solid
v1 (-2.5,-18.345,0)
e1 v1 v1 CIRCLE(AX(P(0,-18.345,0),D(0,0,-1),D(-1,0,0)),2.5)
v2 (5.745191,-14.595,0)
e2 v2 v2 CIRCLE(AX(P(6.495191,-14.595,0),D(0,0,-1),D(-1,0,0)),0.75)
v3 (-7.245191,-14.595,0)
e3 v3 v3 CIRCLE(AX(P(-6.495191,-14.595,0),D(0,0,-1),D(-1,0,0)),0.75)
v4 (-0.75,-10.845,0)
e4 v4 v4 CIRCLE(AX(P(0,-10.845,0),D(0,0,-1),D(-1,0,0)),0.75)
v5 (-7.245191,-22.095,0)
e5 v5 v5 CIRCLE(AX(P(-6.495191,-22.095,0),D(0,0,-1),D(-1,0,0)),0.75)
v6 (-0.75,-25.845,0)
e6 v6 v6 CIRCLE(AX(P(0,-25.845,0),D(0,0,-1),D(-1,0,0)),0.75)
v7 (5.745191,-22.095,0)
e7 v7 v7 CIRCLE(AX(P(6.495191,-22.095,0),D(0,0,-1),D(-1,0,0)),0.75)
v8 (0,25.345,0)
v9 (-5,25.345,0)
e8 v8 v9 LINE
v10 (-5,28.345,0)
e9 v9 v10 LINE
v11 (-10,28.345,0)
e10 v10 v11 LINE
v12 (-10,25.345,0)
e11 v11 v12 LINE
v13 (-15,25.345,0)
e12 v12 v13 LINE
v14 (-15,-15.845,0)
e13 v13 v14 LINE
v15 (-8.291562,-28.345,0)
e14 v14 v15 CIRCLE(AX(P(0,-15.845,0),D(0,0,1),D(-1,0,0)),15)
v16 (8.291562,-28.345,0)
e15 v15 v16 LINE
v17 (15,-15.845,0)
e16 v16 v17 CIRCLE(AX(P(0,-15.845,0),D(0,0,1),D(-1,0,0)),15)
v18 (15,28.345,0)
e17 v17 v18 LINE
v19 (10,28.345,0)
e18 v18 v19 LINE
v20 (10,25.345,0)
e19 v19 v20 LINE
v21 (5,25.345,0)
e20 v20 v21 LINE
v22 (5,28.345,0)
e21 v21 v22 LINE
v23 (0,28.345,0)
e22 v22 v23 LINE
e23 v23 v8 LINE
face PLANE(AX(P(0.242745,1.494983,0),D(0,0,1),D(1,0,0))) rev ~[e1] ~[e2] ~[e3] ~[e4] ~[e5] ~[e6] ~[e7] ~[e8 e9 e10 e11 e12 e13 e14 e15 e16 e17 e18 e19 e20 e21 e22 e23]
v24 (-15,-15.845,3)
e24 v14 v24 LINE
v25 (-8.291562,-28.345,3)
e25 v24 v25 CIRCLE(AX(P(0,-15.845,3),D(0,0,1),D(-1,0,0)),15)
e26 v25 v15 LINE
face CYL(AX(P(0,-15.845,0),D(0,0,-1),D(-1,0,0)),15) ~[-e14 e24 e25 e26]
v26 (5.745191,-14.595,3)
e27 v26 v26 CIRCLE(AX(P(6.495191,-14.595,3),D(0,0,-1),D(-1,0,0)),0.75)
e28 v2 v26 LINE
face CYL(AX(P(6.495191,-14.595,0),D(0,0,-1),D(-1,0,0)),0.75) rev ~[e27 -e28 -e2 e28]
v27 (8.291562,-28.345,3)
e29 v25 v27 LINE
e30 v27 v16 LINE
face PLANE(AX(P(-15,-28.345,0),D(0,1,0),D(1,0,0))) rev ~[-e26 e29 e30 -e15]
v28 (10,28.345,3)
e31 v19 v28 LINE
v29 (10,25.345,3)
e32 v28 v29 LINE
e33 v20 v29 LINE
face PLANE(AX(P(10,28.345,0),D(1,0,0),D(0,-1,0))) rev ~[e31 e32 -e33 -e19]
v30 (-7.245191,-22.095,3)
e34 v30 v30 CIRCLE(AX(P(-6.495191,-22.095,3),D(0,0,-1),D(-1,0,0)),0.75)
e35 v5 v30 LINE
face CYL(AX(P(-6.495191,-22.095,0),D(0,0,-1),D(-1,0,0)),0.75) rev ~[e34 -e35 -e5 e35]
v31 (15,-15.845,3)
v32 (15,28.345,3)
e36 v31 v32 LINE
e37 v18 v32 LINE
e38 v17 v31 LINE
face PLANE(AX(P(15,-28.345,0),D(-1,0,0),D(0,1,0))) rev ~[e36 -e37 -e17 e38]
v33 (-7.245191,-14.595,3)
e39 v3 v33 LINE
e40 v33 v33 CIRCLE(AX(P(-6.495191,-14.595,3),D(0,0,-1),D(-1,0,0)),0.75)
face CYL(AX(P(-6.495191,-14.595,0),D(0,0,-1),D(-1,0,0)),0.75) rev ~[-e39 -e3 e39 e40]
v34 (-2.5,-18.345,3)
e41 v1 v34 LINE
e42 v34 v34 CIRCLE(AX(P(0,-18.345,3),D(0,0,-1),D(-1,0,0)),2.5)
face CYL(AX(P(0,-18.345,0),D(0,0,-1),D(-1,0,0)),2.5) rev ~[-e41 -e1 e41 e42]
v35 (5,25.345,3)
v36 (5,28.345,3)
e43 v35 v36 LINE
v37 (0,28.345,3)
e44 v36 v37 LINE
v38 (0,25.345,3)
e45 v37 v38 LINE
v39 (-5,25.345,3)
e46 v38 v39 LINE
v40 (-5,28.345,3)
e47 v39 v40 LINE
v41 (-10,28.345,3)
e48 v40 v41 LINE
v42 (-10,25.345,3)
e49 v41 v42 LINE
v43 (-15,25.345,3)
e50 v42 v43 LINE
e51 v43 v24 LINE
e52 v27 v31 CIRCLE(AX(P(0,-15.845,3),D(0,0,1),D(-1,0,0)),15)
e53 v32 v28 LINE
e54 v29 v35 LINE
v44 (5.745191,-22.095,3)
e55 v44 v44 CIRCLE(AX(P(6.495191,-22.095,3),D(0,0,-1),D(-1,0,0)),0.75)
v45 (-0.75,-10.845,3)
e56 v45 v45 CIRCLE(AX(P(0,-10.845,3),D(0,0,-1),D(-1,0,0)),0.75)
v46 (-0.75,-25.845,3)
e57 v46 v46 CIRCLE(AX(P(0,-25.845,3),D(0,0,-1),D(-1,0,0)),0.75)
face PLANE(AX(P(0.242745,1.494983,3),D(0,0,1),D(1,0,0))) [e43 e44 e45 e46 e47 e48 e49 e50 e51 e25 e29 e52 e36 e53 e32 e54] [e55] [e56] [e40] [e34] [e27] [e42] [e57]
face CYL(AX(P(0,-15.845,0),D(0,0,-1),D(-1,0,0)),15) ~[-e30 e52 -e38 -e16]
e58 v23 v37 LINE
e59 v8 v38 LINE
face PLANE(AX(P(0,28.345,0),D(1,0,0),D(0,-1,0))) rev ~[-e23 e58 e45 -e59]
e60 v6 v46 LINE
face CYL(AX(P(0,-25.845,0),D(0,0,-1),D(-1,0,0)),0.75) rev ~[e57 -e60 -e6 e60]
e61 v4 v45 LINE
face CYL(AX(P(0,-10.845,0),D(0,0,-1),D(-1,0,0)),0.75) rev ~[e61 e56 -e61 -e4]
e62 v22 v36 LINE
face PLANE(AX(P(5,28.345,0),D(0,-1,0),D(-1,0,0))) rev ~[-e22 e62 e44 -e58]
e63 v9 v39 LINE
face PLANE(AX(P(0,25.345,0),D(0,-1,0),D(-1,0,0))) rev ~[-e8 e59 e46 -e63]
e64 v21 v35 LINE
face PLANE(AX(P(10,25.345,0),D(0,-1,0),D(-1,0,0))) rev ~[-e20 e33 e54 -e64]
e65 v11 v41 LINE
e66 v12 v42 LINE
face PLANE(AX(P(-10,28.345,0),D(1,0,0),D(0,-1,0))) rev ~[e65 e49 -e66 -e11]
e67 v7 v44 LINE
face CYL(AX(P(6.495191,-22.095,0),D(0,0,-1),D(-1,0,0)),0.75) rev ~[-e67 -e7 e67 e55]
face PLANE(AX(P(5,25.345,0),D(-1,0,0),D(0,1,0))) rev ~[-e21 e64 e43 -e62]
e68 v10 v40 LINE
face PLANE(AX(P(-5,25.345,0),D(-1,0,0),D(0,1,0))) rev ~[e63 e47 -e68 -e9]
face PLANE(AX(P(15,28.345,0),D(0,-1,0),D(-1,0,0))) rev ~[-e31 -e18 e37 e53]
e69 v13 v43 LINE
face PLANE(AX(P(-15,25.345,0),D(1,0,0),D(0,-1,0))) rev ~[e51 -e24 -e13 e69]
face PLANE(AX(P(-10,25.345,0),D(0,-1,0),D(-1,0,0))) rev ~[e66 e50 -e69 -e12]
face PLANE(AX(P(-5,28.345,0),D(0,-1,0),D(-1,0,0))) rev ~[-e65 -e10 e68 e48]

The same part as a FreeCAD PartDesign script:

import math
import FreeCAD as App
import Part
import Sketcher

doc = App.newDocument("Part")
body = doc.addObject("PartDesign::Body", "Body")

# Sketch on XY plane
sketch1 = doc.addObject("Sketcher::SketchObject", "Sketch")
body.addObject(sketch1)
sketch1.AttachmentSupport = (doc.XY_Plane, [""])
sketch1.MapMode = "FlatFace"
sketch1.addGeometry([
    Part.LineSegment(App.Vector(-15, -28.3, 0), App.Vector(15, -28.3, 0)),  # 0
    Part.LineSegment(App.Vector(15, -28.3, 0), App.Vector(15, 28.3, 0)),  # 1
    Part.LineSegment(App.Vector(15, 28.3, 0), App.Vector(10, 28.3, 0)),  # 2
    Part.LineSegment(App.Vector(10, 28.3, 0), App.Vector(10, 25.3, 0)),  # 3
    Part.LineSegment(App.Vector(10, 25.3, 0), App.Vector(5, 25.3, 0)),  # 4
    Part.LineSegment(App.Vector(5, 25.3, 0), App.Vector(5, 28.3, 0)),  # 5
    Part.LineSegment(App.Vector(5, 28.3, 0), App.Vector(0, 28.3, 0)),  # 6
    Part.LineSegment(App.Vector(0, 28.3, 0), App.Vector(0, 25.3, 0)),  # 7
    Part.LineSegment(App.Vector(0, 25.3, 0), App.Vector(-5, 25.3, 0)),  # 8
    Part.LineSegment(App.Vector(-5, 25.3, 0), App.Vector(-5, 28.3, 0)),  # 9
    Part.LineSegment(App.Vector(-5, 28.3, 0), App.Vector(-10, 28.3, 0)),  # 10
    Part.LineSegment(App.Vector(-10, 28.3, 0), App.Vector(-10, 25.3, 0)),  # 11
    Part.LineSegment(App.Vector(-10, 25.3, 0), App.Vector(-15, 25.3, 0)),  # 12
    Part.LineSegment(App.Vector(-15, 25.3, 0), App.Vector(-15, -28.3, 0)),  # 13
], False)
sketch1.addConstraint([
    Sketcher.Constraint("Coincident", 0, 2, 1, 1),
    Sketcher.Constraint("Coincident", 1, 2, 2, 1),
    Sketcher.Constraint("Coincident", 2, 2, 3, 1),
    Sketcher.Constraint("Coincident", 3, 2, 4, 1),
    Sketcher.Constraint("Coincident", 4, 2, 5, 1),
    Sketcher.Constraint("Coincident", 5, 2, 6, 1),
    Sketcher.Constraint("Coincident", 6, 2, 7, 1),
    Sketcher.Constraint("Coincident", 7, 2, 8, 1),
    Sketcher.Constraint("Coincident", 8, 2, 9, 1),
    Sketcher.Constraint("Coincident", 9, 2, 10, 1),
    Sketcher.Constraint("Coincident", 10, 2, 11, 1),
    Sketcher.Constraint("Coincident", 11, 2, 12, 1),
    Sketcher.Constraint("Coincident", 12, 2, 13, 1),
    Sketcher.Constraint("Coincident", 13, 2, 0, 1),
    Sketcher.Constraint("Horizontal", 0),
    Sketcher.Constraint("Vertical", 1),
    Sketcher.Constraint("Horizontal", 2),
    Sketcher.Constraint("Vertical", 3),
    Sketcher.Constraint("Horizontal", 4),
    Sketcher.Constraint("Vertical", 5),
    Sketcher.Constraint("Horizontal", 6),
    Sketcher.Constraint("Vertical", 7),
    Sketcher.Constraint("Horizontal", 8),
    Sketcher.Constraint("Vertical", 9),
    Sketcher.Constraint("Horizontal", 10),
    Sketcher.Constraint("Vertical", 11),
    Sketcher.Constraint("Horizontal", 12),
    Sketcher.Constraint("Vertical", 13),
    Sketcher.Constraint("Symmetric", 1, 2, 13, 2, -1, 1),
    Sketcher.Constraint("Symmetric", 4, 2, 8, 2, -2),
    Sketcher.Constraint("Symmetric", 2, 2, 10, 2, -2),
    Sketcher.Constraint("PointOnObject", 6, 2, -2),
    Sketcher.Constraint("Horizontal", 2, 2, 5, 2),
    Sketcher.Constraint("Horizontal", 8, 2, 11, 2),
    Sketcher.Constraint("Equal", 2, 4),
    Sketcher.Constraint("Equal", 4, 6),
    Sketcher.Constraint("DistanceX", 0, 1, 0, 2, 30.0),
    Sketcher.Constraint("DistanceY", 3, 2, 3, 1, 3.0),
    Sketcher.Constraint("DistanceY", 1, 1, 1, 2, 56.69),
])
pad1 = doc.addObject("PartDesign::Pad", "Pad")
body.addObject(pad1)
pad1.Profile = sketch1
pad1.Length = 3

# Sketch on XY plane
sketch2 = doc.addObject("Sketcher::SketchObject", "Sketch001")
body.addObject(sketch2)
sketch2.AttachmentSupport = (doc.XY_Plane, [""])
sketch2.MapMode = "FlatFace"
sketch2.addGeometry([
    Part.LineSegment(App.Vector(15, -16, 0), App.Vector(21, -16, 0)),  # 0
    Part.LineSegment(App.Vector(21, -16, 0), App.Vector(21, -35, 0)),  # 1
    Part.LineSegment(App.Vector(21, -35, 0), App.Vector(-21, -35, 0)),  # 2
    Part.LineSegment(App.Vector(-21, -35, 0), App.Vector(-21, -16, 0)),  # 3
    Part.LineSegment(App.Vector(-21, -16, 0), App.Vector(-15, -16, 0)),  # 4
    Part.ArcOfCircle(Part.Circle(App.Vector(0, -16, 0), App.Vector(0, 0, 1), 15), math.radians(180), math.radians(360)),  # 5
], False)
sketch2.addConstraint([
    Sketcher.Constraint("Coincident", 0, 2, 1, 1),
    Sketcher.Constraint("Coincident", 1, 2, 2, 1),
    Sketcher.Constraint("Coincident", 2, 2, 3, 1),
    Sketcher.Constraint("Coincident", 3, 2, 4, 1),
    Sketcher.Constraint("Coincident", 4, 2, 5, 1),
    Sketcher.Constraint("Coincident", 5, 2, 0, 1),
    Sketcher.Constraint("Horizontal", 0),
    Sketcher.Constraint("Vertical", 1),
    Sketcher.Constraint("Horizontal", 2),
    Sketcher.Constraint("Vertical", 3),
    Sketcher.Constraint("Horizontal", 4),
    Sketcher.Constraint("Symmetric", 4, 2, 5, 2, -2),
    Sketcher.Constraint("Horizontal", 5, 3, 0, 2),
    Sketcher.Constraint("Radius", 5, 15.0),
    Sketcher.Constraint("DistanceY", 5, 3, -1, 1, 15.845),
    Sketcher.Constraint("DistanceX", 0, 1, 0, 2, 6.186751),
    Sketcher.Constraint("DistanceX", 2, 2, 2, 1, 42.375707),
    Sketcher.Constraint("DistanceY", 1, 2, 1, 1, 18.803086),
])
pocket1 = doc.addObject("PartDesign::Pocket", "Pocket")
body.addObject(pocket1)
pocket1.Profile = sketch2
pocket1.Length = 3
pocket1.Reversed = True

# Sketch on XY plane
sketch3 = doc.addObject("Sketcher::SketchObject", "Sketch002")
body.addObject(sketch3)
sketch3.AttachmentSupport = (doc.XY_Plane, [""])
sketch3.MapMode = "FlatFace"
sketch3.addGeometry(Part.Circle(App.Vector(0, -10.8, 0), App.Vector(0, 0, 1), 0.8), False)
sketch3.addConstraint([
    Sketcher.Constraint("PointOnObject", 0, 3, -2),
    Sketcher.Constraint("Diameter", 0, 1.5),
    Sketcher.Constraint("DistanceY", 0, 3, -1, 1, 10.845),
])
pocket2 = doc.addObject("PartDesign::Pocket", "Pocket001")
body.addObject(pocket2)
pocket2.Profile = sketch3
pocket2.Type = "UpToFirst"
pocket2.Reversed = True

# Sketch on XY plane
sketch4 = doc.addObject("Sketcher::SketchObject", "Sketch003")
body.addObject(sketch4)
sketch4.AttachmentSupport = (doc.XY_Plane, [""])
sketch4.MapMode = "FlatFace"
sketch4.addGeometry(Part.Circle(App.Vector(-6.5, -14.6, 0), App.Vector(0, 0, 1), 0.8), False)
sketch4.addConstraint([
    Sketcher.Constraint("Diameter", 0, 1.5),
    Sketcher.Constraint("DistanceY", 0, 3, -1, 1, 14.595),
    Sketcher.Constraint("DistanceX", 0, 3, -1, 1, 6.495191),
])
pocket3 = doc.addObject("PartDesign::Pocket", "Pocket002")
body.addObject(pocket3)
pocket3.Profile = sketch4
pocket3.Type = "UpToFirst"
pocket3.Reversed = True

# Sketch on XY plane
sketch5 = doc.addObject("Sketcher::SketchObject", "Sketch004")
body.addObject(sketch5)
sketch5.AttachmentSupport = (doc.XY_Plane, [""])
sketch5.MapMode = "FlatFace"
sketch5.addGeometry(Part.Circle(App.Vector(-6.5, -22.1, 0), App.Vector(0, 0, 1), 0.8), False)
sketch5.addConstraint([
    Sketcher.Constraint("Diameter", 0, 1.5),
    Sketcher.Constraint("DistanceY", 0, 3, -1, 1, 22.095),
    Sketcher.Constraint("DistanceX", 0, 3, -1, 1, 6.495191),
])
pocket4 = doc.addObject("PartDesign::Pocket", "Pocket003")
body.addObject(pocket4)
pocket4.Profile = sketch5
pocket4.Type = "UpToFirst"
pocket4.Reversed = True

# Sketch on XY plane
sketch6 = doc.addObject("Sketcher::SketchObject", "Sketch005")
body.addObject(sketch6)
sketch6.AttachmentSupport = (doc.XY_Plane, [""])
sketch6.MapMode = "FlatFace"
sketch6.addGeometry(Part.Circle(App.Vector(0, -25.8, 0), App.Vector(0, 0, 1), 0.8), False)
sketch6.addConstraint([
    Sketcher.Constraint("PointOnObject", 0, 3, -2),
    Sketcher.Constraint("Diameter", 0, 1.5),
    Sketcher.Constraint("DistanceY", 0, 3, -1, 1, 25.845),
])
pocket5 = doc.addObject("PartDesign::Pocket", "Pocket004")
body.addObject(pocket5)
pocket5.Profile = sketch6
pocket5.Type = "UpToFirst"
pocket5.Reversed = True

# Sketch on XY plane
sketch7 = doc.addObject("Sketcher::SketchObject", "Sketch006")
body.addObject(sketch7)
sketch7.AttachmentSupport = (doc.XY_Plane, [""])
sketch7.MapMode = "FlatFace"
sketch7.addGeometry(Part.Circle(App.Vector(6.5, -22.1, 0), App.Vector(0, 0, 1), 0.8), False)
sketch7.addConstraint([
    Sketcher.Constraint("Diameter", 0, 1.5),
    Sketcher.Constraint("DistanceY", 0, 3, -1, 1, 22.095),
    Sketcher.Constraint("DistanceX", -1, 1, 0, 3, 6.495191),
])
pocket6 = doc.addObject("PartDesign::Pocket", "Pocket005")
body.addObject(pocket6)
pocket6.Profile = sketch7
pocket6.Type = "UpToFirst"
pocket6.Reversed = True

# Sketch on XY plane
sketch8 = doc.addObject("Sketcher::SketchObject", "Sketch007")
body.addObject(sketch8)
sketch8.AttachmentSupport = (doc.XY_Plane, [""])
sketch8.MapMode = "FlatFace"
sketch8.addGeometry(Part.Circle(App.Vector(6.5, -14.6, 0), App.Vector(0, 0, 1), 0.8), False)
sketch8.addConstraint([
    Sketcher.Constraint("Diameter", 0, 1.5),
    Sketcher.Constraint("DistanceY", 0, 3, -1, 1, 14.595),
    Sketcher.Constraint("DistanceX", -1, 1, 0, 3, 6.495191),
])
pocket7 = doc.addObject("PartDesign::Pocket", "Pocket006")
body.addObject(pocket7)
pocket7.Profile = sketch8
pocket7.Type = "UpToFirst"
pocket7.Reversed = True

# Sketch on XY plane
sketch9 = doc.addObject("Sketcher::SketchObject", "Sketch008")
body.addObject(sketch9)
sketch9.AttachmentSupport = (doc.XY_Plane, [""])
sketch9.MapMode = "FlatFace"
sketch9.addGeometry(Part.Circle(App.Vector(0, -18.3, 0), App.Vector(0, 0, 1), 2.5), False)
sketch9.addConstraint([
    Sketcher.Constraint("PointOnObject", 0, 3, -2),
    Sketcher.Constraint("Diameter", 0, 5.0),
    Sketcher.Constraint("DistanceY", 0, 3, -1, 1, 18.345),
])
pocket8 = doc.addObject("PartDesign::Pocket", "Pocket007")
body.addObject(pocket8)
pocket8.Profile = sketch9
pocket8.Type = "UpToFirst"
pocket8.Reversed = True

doc.recompute()
